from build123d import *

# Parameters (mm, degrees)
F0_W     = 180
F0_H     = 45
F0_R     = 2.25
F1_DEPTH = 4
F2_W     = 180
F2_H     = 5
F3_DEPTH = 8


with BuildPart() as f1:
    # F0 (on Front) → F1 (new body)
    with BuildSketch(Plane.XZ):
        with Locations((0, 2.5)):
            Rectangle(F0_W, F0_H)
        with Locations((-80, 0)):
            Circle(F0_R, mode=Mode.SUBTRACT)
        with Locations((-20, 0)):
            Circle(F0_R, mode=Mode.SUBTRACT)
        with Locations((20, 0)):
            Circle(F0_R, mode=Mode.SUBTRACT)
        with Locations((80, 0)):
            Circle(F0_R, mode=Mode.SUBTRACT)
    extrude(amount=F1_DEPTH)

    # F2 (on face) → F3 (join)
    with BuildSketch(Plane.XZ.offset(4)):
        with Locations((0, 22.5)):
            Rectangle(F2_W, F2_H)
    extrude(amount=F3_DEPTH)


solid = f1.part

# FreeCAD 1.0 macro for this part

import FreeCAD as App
import Part
import Sketcher

doc = App.newDocument("Part")
body = doc.addObject("PartDesign::Body", "Body")

sketch1 = body.newObject("Sketcher::SketchObject", "Sketch")
sketch1.AttachmentSupport = (doc.getObject("XZ_Plane"), [""])
sketch1.MapMode = "FlatFace"
sketch1.addGeometry([
    Part.LineSegment(App.Vector(-90, 25, 0), App.Vector(-90, -20, 0)),
    Part.LineSegment(App.Vector(-90, -20, 0), App.Vector(90, -20, 0)),
    Part.LineSegment(App.Vector(90, -20, 0), App.Vector(90, 25, 0)),
    Part.LineSegment(App.Vector(90, 25, 0), App.Vector(-90, 25, 0)),
    Part.Circle(App.Vector(-80, 0, 0), App.Vector(0, 0, 1), 2.25),
    Part.Circle(App.Vector(-20, 0, 0), App.Vector(0, 0, 1), 2.25),
    Part.Circle(App.Vector(20, 0, 0), App.Vector(0, 0, 1), 2.25),
    Part.Circle(App.Vector(80, 0, 0), App.Vector(0, 0, 1), 2.25),
], False)
sketch1.addConstraint([
    Sketcher.Constraint("Coincident", 0, 2, 1, 1),
    Sketcher.Constraint("Coincident", 1, 2, 2, 1),
    Sketcher.Constraint("Coincident", 2, 2, 3, 1),
    Sketcher.Constraint("Coincident", 3, 2, 0, 1),
    Sketcher.Constraint("Vertical", 0),
    Sketcher.Constraint("Horizontal", 1),
    Sketcher.Constraint("Vertical", 2),
    Sketcher.Constraint("Horizontal", 3),
    Sketcher.Constraint("Equal", 4, 5),
    Sketcher.Constraint("Equal", 5, 6),
    Sketcher.Constraint("Equal", 6, 7),
    Sketcher.Constraint("Symmetric", 5, 3, 6, 3, -1, 1),
    Sketcher.Constraint("Symmetric", 4, 3, 7, 3, -1, 1),
    Sketcher.Constraint("PointOnObject", 4, 3, -1),
    Sketcher.Constraint("PointOnObject", 5, 3, -1),
    Sketcher.Constraint("Diameter", 4, 4.5),
    Sketcher.Constraint("DistanceX", 1, 1, 1, 2, 180.0),
    Sketcher.Constraint("DistanceY", 0, 2, 0, 1, 45.0),
    Sketcher.Constraint("DistanceX", 4, 3, -1, 1, 80.0),
    Sketcher.Constraint("DistanceX", 5, 3, -1, 1, 20.0),
    Sketcher.Constraint("DistanceX", 0, 2, -1, 1, 90.0),
    Sketcher.Constraint("DistanceY", 0, 2, -1, 1, 20.0),
])
pad1 = body.newObject("PartDesign::Pad", "Pad")
pad1.Profile = sketch1
pad1.Length = 4

sketch2 = body.newObject("Sketcher::SketchObject", "Sketch001")
sketch2.AttachmentSupport = (doc.getObject("XZ_Plane"), [""])
sketch2.MapMode = "FlatFace"
sketch2.AttachmentOffset = App.Placement(App.Vector(0, 0, 4), App.Rotation())
sketch2.addGeometry([
    Part.LineSegment(App.Vector(-90, 25, 0), App.Vector(-90, 20, 0)),
    Part.LineSegment(App.Vector(-90, 20, 0), App.Vector(90, 20, 0)),
    Part.LineSegment(App.Vector(90, 20, 0), App.Vector(90, 25, 0)),
    Part.LineSegment(App.Vector(90, 25, 0), App.Vector(-90, 25, 0)),
], False)
sketch2.addConstraint([
    Sketcher.Constraint("Coincident", 0, 2, 1, 1),
    Sketcher.Constraint("Coincident", 1, 2, 2, 1),
    Sketcher.Constraint("Coincident", 2, 2, 3, 1),
    Sketcher.Constraint("Coincident", 3, 2, 0, 1),
    Sketcher.Constraint("Vertical", 0),
    Sketcher.Constraint("Horizontal", 1),
    Sketcher.Constraint("Vertical", 2),
    Sketcher.Constraint("Horizontal", 3),
    Sketcher.Constraint("DistanceX", 1, 1, 1, 2, 180.0),
    Sketcher.Constraint("DistanceY", 0, 2, 0, 1, 5.0),
    Sketcher.Constraint("DistanceX", 0, 2, -1, 1, 90.0),
    Sketcher.Constraint("DistanceY", -1, 1, 0, 2, 20.0),
])
pad2 = body.newObject("PartDesign::Pad", "Pad001")
pad2.Profile = sketch2
pad2.Length = 8

doc.recompute()
